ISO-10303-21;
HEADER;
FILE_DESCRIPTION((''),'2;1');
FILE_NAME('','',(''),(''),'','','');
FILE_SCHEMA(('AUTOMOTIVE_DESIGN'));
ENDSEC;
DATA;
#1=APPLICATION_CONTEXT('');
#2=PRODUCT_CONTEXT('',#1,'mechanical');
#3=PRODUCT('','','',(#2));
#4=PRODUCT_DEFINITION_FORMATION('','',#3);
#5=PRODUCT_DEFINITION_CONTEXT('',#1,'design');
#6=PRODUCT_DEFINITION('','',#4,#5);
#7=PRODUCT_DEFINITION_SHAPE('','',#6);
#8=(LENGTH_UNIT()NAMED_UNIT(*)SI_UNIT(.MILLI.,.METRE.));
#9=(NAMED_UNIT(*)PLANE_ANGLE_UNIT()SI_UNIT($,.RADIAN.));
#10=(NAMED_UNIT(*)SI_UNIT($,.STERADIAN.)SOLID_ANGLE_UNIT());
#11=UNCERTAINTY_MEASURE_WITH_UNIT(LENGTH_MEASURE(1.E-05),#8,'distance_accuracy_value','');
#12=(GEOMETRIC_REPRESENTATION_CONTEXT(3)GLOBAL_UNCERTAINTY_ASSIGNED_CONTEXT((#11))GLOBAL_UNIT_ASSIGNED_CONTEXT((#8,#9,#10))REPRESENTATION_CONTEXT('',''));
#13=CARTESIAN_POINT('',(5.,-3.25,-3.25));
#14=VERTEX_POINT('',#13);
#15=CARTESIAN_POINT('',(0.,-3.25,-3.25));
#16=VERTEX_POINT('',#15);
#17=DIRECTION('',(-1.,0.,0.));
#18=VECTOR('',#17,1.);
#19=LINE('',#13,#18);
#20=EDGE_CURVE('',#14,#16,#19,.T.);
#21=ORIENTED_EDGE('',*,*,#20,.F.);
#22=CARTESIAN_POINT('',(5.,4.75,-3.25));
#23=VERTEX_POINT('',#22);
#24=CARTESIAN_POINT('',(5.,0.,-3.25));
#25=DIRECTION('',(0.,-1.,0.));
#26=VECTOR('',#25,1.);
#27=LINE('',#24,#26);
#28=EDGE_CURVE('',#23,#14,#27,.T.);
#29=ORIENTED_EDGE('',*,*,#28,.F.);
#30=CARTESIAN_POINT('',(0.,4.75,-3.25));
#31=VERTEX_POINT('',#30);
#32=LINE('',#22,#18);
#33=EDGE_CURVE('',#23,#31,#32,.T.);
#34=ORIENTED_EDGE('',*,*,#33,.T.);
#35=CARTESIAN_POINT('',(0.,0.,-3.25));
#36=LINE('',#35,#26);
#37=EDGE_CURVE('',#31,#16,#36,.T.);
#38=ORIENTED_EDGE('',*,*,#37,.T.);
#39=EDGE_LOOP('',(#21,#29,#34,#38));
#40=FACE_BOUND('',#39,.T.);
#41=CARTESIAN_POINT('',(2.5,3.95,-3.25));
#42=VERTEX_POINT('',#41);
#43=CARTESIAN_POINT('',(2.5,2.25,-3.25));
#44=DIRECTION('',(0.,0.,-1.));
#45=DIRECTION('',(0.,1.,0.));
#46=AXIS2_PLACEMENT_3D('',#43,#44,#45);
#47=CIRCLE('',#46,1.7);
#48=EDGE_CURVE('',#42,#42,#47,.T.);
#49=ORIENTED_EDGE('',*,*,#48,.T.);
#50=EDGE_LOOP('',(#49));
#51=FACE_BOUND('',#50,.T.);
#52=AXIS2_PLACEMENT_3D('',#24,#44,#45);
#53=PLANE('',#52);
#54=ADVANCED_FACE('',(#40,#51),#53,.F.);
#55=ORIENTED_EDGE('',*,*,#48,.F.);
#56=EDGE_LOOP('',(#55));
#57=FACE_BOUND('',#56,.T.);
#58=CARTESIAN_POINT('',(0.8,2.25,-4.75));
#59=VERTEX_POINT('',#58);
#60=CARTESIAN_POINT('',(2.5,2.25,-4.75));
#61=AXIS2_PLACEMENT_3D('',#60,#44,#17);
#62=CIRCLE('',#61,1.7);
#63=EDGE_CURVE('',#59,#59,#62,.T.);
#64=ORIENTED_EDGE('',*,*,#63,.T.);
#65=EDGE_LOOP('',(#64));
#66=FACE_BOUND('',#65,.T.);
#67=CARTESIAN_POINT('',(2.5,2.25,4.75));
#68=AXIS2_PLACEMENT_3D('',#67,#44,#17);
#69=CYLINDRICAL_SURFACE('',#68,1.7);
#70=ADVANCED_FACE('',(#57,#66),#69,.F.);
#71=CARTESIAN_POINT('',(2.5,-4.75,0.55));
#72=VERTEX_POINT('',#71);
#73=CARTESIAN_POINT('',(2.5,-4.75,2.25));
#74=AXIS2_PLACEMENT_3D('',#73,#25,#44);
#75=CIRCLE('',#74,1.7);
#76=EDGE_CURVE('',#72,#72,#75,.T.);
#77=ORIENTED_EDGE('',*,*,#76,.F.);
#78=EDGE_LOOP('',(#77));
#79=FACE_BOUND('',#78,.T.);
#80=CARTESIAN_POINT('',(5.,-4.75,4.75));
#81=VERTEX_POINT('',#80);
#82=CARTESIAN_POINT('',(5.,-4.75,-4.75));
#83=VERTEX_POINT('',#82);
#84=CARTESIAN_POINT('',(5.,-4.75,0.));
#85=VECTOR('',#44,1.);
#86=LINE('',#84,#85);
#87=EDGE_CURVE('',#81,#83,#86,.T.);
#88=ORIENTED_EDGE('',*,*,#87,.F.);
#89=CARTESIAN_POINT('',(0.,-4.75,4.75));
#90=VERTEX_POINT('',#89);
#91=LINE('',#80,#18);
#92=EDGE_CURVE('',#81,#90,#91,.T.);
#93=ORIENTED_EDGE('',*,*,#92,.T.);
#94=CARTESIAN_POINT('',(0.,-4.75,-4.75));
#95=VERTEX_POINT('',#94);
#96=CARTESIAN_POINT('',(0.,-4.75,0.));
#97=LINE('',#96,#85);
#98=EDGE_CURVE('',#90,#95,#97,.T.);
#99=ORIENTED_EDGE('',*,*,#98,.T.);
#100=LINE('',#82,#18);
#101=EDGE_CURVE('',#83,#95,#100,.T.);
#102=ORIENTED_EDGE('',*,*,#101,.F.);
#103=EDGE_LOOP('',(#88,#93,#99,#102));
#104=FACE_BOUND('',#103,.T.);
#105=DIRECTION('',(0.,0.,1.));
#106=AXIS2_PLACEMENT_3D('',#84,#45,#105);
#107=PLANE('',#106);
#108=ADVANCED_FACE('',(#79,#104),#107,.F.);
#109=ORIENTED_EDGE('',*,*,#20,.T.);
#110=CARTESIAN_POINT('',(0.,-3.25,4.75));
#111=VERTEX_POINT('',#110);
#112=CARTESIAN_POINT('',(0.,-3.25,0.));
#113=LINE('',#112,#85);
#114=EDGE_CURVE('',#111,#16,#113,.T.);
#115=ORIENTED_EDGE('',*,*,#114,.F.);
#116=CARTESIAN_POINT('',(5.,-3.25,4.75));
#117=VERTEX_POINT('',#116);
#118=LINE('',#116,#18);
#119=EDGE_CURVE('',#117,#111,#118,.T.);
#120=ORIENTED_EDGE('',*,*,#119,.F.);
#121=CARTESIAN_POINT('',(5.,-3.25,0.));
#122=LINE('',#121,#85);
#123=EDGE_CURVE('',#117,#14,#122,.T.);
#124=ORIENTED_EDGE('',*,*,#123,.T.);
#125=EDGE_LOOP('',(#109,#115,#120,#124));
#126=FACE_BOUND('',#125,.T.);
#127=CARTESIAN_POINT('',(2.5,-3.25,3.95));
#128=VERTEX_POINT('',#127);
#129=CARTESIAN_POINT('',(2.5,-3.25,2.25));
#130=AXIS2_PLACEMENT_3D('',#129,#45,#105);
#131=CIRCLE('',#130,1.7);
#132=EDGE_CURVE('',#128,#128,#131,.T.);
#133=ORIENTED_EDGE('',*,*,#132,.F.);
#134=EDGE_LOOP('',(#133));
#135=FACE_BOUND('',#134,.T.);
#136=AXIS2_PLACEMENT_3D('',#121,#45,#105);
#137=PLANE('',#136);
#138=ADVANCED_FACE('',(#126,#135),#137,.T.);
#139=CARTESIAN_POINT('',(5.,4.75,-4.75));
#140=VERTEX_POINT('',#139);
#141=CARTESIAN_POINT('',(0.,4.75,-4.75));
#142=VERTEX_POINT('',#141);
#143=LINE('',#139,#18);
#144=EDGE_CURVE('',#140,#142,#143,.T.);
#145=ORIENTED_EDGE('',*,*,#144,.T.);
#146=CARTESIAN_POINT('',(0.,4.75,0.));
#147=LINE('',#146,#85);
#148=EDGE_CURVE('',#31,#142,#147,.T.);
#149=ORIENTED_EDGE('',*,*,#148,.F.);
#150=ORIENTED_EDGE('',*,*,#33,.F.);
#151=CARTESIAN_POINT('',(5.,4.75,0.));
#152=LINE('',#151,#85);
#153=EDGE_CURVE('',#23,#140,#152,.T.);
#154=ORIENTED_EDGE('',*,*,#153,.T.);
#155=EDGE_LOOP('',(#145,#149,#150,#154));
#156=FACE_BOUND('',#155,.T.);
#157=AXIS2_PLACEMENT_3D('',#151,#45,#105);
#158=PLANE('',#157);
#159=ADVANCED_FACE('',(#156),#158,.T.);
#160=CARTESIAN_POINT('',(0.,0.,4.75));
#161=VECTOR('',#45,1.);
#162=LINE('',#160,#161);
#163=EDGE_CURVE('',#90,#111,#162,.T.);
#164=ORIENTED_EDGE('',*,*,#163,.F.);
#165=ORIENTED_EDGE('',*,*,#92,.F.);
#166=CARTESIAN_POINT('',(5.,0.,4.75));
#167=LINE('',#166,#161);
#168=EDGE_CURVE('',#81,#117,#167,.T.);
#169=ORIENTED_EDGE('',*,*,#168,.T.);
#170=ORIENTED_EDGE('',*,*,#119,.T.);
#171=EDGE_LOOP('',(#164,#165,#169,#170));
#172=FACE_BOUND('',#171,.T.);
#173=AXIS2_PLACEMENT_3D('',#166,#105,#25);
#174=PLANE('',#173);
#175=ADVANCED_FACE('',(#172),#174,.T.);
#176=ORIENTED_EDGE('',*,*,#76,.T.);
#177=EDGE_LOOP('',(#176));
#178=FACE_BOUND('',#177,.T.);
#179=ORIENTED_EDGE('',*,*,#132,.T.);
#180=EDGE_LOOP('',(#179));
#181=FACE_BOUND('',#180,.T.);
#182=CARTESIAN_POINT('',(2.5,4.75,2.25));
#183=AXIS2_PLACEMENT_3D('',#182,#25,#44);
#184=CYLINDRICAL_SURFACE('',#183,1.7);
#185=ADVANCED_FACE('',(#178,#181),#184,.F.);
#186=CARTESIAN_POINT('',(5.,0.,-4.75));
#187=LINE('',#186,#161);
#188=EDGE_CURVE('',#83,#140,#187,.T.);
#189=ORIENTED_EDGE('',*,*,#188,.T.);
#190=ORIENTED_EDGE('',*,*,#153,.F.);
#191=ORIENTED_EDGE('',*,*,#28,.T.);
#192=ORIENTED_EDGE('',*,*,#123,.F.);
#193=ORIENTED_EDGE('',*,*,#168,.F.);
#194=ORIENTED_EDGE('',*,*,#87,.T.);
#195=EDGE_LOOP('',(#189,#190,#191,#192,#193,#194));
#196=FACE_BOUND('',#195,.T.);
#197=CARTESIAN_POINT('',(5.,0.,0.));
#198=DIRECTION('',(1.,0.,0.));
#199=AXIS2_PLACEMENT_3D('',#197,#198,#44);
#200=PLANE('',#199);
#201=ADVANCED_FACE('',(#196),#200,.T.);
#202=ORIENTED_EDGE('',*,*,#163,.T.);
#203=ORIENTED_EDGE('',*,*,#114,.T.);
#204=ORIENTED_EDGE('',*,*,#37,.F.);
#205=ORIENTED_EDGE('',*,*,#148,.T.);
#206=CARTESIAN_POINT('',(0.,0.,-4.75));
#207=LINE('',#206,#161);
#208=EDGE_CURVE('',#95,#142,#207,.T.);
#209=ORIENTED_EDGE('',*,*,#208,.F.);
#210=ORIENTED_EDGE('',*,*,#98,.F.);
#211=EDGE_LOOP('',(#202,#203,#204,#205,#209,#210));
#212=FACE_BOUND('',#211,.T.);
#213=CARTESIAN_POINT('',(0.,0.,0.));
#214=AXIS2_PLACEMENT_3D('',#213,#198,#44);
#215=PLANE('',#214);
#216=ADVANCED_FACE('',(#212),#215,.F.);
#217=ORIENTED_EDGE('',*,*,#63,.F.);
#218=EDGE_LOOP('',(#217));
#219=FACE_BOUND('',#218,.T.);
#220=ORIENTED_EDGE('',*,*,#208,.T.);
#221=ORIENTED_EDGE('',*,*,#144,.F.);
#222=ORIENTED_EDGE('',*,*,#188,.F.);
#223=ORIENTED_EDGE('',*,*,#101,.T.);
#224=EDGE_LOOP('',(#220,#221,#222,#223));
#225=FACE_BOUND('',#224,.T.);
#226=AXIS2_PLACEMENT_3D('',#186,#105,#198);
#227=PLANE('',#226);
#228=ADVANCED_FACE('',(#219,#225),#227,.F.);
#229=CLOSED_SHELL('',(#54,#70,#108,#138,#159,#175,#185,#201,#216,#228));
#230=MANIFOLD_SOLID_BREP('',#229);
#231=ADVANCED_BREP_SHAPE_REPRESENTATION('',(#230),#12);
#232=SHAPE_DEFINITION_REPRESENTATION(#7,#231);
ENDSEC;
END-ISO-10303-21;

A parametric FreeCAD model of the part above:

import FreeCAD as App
import Part
import Sketcher
from FreeCAD import Vector
Q = App.Units.Quantity

doc = App.newDocument("Part")
body = doc.addObject("PartDesign::Body", "Body")

# Sketch on YZ plane
sketch1 = doc.addObject("Sketcher::SketchObject", "Sketch")
body.addObject(sketch1)
sketch1.AttachmentSupport = (doc.YZ_Plane, [""])
sketch1.MapMode = "FlatFace"
sketch1.addGeometry([
    Part.LineSegment(Vector(-3.2, 4.8, 0), Vector(-4.8, 4.8, 0)),  # 0
    Part.LineSegment(Vector(-4.8, 4.8, 0), Vector(-4.8, -4.8, 0)),  # 1
    Part.LineSegment(Vector(-4.8, -4.8, 0), Vector(4.8, -4.8, 0)),  # 2
    Part.LineSegment(Vector(4.8, -4.8, 0), Vector(4.8, -3.2, 0)),  # 3
    Part.LineSegment(Vector(4.8, -3.2, 0), Vector(-3.2, -3.2, 0)),  # 4
    Part.LineSegment(Vector(-3.2, -3.2, 0), Vector(-3.2, 4.8, 0)),  # 5
], False)
sketch1.addConstraint([
    Sketcher.Constraint("Coincident", 0, 2, 1, 1),
    Sketcher.Constraint("Coincident", 1, 2, 2, 1),
    Sketcher.Constraint("Coincident", 2, 2, 3, 1),
    Sketcher.Constraint("Coincident", 3, 2, 4, 1),
    Sketcher.Constraint("Coincident", 4, 2, 5, 1),
    Sketcher.Constraint("Coincident", 5, 2, 0, 1),
    Sketcher.Constraint("Horizontal", 0),
    Sketcher.Constraint("Vertical", 1),
    Sketcher.Constraint("Horizontal", 2),
    Sketcher.Constraint("Vertical", 3),
    Sketcher.Constraint("Horizontal", 4),
    Sketcher.Constraint("Vertical", 5),
    Sketcher.Constraint("Symmetric", 0, 2, 2, 2, -1, 1),
    Sketcher.Constraint("Equal", 2, 1),
    Sketcher.Constraint("Equal", 0, 3),
    Sketcher.Constraint("DistanceX", 4, 2, 4, 1, Q("8 mm")),
    Sketcher.Constraint("DistanceX", 0, 2, 0, 1, Q("1.5 mm")),
])
pad1 = doc.addObject("PartDesign::Pad", "Pad")
body.addObject(pad1)
pad1.Profile = sketch1
pad1.Length = 5

# Sketch on XY plane
sketch2 = doc.addObject("Sketcher::SketchObject", "Sketch001")
body.addObject(sketch2)
sketch2.AttachmentSupport = (doc.XY_Plane, [""])
sketch2.MapMode = "FlatFace"
sketch2.AttachmentOffset = App.Placement(Vector(0, 0, -4.75), App.Rotation())
sketch2.addGeometry(Part.Circle(Vector(2.5, 2.2, 0), Vector(0, 0, 1), 1.7), False)
sketch2.addConstraint([
    Sketcher.Constraint("Diameter", 0, Q("3.4 mm")),
    Sketcher.Constraint("DistanceX", -1, 1, 0, 3, Q("2.5 mm")),
    Sketcher.Constraint("DistanceY", -1, 1, 0, 3, Q("2.25 mm")),
])
pocket1 = doc.addObject("PartDesign::Pocket", "Pocket")
body.addObject(pocket1)
pocket1.Profile = sketch2
pocket1.Type = "ThroughAll"
pocket1.Reversed = True

# Sketch on XZ plane
sketch3 = doc.addObject("Sketcher::SketchObject", "Sketch002")
body.addObject(sketch3)
sketch3.AttachmentSupport = (doc.XZ_Plane, [""])
sketch3.MapMode = "FlatFace"
sketch3.AttachmentOffset = App.Placement(Vector(0, 0, 4.75), App.Rotation())
sketch3.addGeometry(Part.Circle(Vector(2.5, 2.2, 0), Vector(0, 0, 1), 1.7), False)
sketch3.addConstraint([
    Sketcher.Constraint("Diameter", 0, Q("3.4 mm")),
    Sketcher.Constraint("DistanceX", -1, 1, 0, 3, Q("2.5 mm")),
    Sketcher.Constraint("DistanceY", -1, 1, 0, 3, Q("2.25 mm")),
])
pocket2 = doc.addObject("PartDesign::Pocket", "Pocket001")
body.addObject(pocket2)
pocket2.Profile = sketch3
pocket2.Type = "ThroughAll"

doc.recompute()
